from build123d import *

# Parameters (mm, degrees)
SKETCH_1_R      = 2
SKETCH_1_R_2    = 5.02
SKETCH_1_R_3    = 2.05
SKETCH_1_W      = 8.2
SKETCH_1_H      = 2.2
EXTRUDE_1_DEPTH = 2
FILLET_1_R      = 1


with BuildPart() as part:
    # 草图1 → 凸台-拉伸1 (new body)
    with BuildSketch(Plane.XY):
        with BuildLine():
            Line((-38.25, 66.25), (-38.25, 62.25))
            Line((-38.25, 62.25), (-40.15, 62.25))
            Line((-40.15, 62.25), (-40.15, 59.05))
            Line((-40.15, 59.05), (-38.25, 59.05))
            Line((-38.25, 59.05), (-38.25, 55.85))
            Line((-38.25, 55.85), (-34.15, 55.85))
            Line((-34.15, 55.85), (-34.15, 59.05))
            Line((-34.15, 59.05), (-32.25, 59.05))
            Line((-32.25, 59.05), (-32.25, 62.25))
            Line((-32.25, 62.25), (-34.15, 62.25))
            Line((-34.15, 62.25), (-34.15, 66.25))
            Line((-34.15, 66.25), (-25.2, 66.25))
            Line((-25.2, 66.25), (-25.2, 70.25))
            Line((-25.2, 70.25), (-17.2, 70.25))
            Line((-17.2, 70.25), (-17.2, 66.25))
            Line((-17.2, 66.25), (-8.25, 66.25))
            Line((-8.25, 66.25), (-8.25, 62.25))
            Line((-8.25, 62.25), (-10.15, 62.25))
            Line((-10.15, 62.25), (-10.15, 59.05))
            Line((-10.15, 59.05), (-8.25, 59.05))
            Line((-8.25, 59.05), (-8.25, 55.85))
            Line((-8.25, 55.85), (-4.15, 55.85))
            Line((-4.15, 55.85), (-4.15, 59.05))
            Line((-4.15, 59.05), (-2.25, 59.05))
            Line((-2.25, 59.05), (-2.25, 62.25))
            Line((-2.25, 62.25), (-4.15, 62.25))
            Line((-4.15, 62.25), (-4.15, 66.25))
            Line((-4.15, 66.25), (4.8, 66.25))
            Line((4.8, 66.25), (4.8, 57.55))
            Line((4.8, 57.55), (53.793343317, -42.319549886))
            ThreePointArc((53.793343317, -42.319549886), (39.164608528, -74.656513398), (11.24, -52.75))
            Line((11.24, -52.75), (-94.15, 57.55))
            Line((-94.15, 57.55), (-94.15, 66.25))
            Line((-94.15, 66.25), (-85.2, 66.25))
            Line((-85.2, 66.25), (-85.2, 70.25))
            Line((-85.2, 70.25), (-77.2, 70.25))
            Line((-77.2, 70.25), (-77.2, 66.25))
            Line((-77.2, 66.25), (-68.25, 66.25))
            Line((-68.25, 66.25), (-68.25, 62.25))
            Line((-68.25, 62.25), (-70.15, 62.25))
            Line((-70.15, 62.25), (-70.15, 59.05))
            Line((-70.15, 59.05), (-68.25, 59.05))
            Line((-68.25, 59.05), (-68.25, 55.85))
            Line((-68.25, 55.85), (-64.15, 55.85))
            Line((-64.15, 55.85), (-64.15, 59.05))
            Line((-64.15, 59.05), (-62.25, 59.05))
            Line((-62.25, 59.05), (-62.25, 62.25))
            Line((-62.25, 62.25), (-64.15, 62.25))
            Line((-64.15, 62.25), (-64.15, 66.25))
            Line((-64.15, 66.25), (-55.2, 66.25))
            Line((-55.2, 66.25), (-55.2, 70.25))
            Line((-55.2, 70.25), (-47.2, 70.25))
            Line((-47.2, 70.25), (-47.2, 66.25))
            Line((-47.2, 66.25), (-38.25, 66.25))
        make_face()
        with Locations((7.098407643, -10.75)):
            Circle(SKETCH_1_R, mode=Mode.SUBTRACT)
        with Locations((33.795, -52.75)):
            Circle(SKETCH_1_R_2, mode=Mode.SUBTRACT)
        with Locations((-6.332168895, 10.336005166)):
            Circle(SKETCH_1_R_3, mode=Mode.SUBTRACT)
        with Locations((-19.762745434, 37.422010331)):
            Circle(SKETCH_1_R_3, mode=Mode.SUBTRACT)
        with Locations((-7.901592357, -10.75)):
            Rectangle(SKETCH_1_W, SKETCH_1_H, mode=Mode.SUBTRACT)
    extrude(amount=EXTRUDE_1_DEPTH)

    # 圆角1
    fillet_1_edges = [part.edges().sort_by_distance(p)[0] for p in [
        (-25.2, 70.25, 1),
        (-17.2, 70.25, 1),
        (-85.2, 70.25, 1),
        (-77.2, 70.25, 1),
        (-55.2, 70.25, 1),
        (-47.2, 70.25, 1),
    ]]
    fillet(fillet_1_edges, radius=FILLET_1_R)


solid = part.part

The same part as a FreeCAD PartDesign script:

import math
import FreeCAD as App
import Part
import Sketcher

V = App.Vector
Q = App.Units.Quantity


def edges_at(feature, points):
    """Names of the edges that pass closest to the given points."""
    edges = feature.Shape.Edges
    near = lambda p: min(range(len(edges)), key=lambda i: edges[i].distToShape(Part.Vertex(*p))[0])
    return sorted({f"Edge{near(p) + 1}" for p in points})


def add_polygon(sketch, points):
    """Adds a closed chain of lines whose ends are joined by coincident constraints."""
    first, n = sketch.GeometryCount, len(points)
    for a, b in zip(points, points[1:] + points[:1]):
        sketch.addGeometry(Part.LineSegment(App.Vector(*a, 0), App.Vector(*b, 0)), False)
    for i in range(n):
        sketch.addConstraint(Sketcher.Constraint("Coincident", first + i, 2, first + (i + 1) % n, 1))

doc = App.newDocument("Part")
body = doc.addObject("PartDesign::Body", "Body")

# Sketch on XY plane
sketch1 = body.newObject("Sketcher::SketchObject", "Sketch")
sketch1.AttachmentSupport = (doc.getObject("XY_Plane"), [""])
sketch1.MapMode = "FlatFace"
sketch1.addGeometry(Part.LineSegment(V(-38.2, 62.2, 0), V(-38.2, 66.2, 0)), False)  # 0
sketch1.addGeometry(Part.LineSegment(V(-38.2, 66.2, 0), V(-47.2, 66.2, 0)), False)  # 1
sketch1.addGeometry(Part.LineSegment(V(-47.2, 66.2, 0), V(-47.2, 70.2, 0)), False)  # 2
sketch1.addGeometry(Part.LineSegment(V(-47.2, 70.2, 0), V(-55.2, 70.2, 0)), False)  # 3
sketch1.addGeometry(Part.LineSegment(V(-55.2, 70.2, 0), V(-55.2, 66.2, 0)), False)  # 4
sketch1.addGeometry(Part.LineSegment(V(-55.2, 66.2, 0), V(-64.2, 66.2, 0)), False)  # 5
sketch1.addGeometry(Part.LineSegment(V(-64.2, 66.2, 0), V(-64.2, 62.2, 0)), False)  # 6
sketch1.addGeometry(Part.LineSegment(V(-64.2, 62.2, 0), V(-62.2, 62.2, 0)), False)  # 7
sketch1.addGeometry(Part.LineSegment(V(-62.2, 62.2, 0), V(-62.2, 59, 0)), False)  # 8
sketch1.addGeometry(Part.LineSegment(V(-62.2, 59, 0), V(-64.2, 59, 0)), False)  # 9
sketch1.addGeometry(Part.LineSegment(V(-64.2, 59, 0), V(-64.2, 55.9, 0)), False)  # 10
sketch1.addGeometry(Part.LineSegment(V(-64.2, 55.9, 0), V(-68.2, 55.9, 0)), False)  # 11
sketch1.addGeometry(Part.LineSegment(V(-68.2, 55.9, 0), V(-68.2, 59, 0)), False)  # 12
sketch1.addGeometry(Part.LineSegment(V(-68.2, 59, 0), V(-70.2, 59, 0)), False)  # 13
sketch1.addGeometry(Part.LineSegment(V(-70.2, 59, 0), V(-70.2, 62.2, 0)), False)  # 14
sketch1.addGeometry(Part.LineSegment(V(-70.2, 62.2, 0), V(-68.2, 62.2, 0)), False)  # 15
sketch1.addGeometry(Part.LineSegment(V(-68.2, 62.2, 0), V(-68.2, 66.2, 0)), False)  # 16
sketch1.addGeometry(Part.LineSegment(V(-68.2, 66.2, 0), V(-77.2, 66.2, 0)), False)  # 17
sketch1.addGeometry(Part.LineSegment(V(-77.2, 66.2, 0), V(-77.2, 70.2, 0)), False)  # 18
sketch1.addGeometry(Part.LineSegment(V(-77.2, 70.2, 0), V(-85.2, 70.2, 0)), False)  # 19
sketch1.addGeometry(Part.LineSegment(V(-85.2, 70.2, 0), V(-85.2, 66.2, 0)), False)  # 20
sketch1.addGeometry(Part.LineSegment(V(-85.2, 66.2, 0), V(-94.2, 66.2, 0)), False)  # 21
sketch1.addGeometry(Part.LineSegment(V(-94.2, 66.2, 0), V(-94.2, 57.5, 0)), False)  # 22
sketch1.addGeometry(Part.LineSegment(V(-94.2, 57.5, 0), V(11.2, -52.8, 0)), False)  # 23
sketch1.addGeometry(Part.ArcOfCircle(Part.Circle(V(33.8, -52.8, 0), V(0, 0, 1), 22.6), math.radians(180), math.radians(388)), False)  # 24
sketch1.addGeometry(Part.LineSegment(V(53.8, -42.3, 0), V(4.8, 57.5, 0)), False)  # 25
sketch1.addGeometry(Part.LineSegment(V(4.8, 57.5, 0), V(4.8, 66.2, 0)), False)  # 26
sketch1.addGeometry(Part.LineSegment(V(4.8, 66.2, 0), V(-4.2, 66.2, 0)), False)  # 27
sketch1.addGeometry(Part.LineSegment(V(-4.2, 66.2, 0), V(-4.2, 62.2, 0)), False)  # 28
sketch1.addGeometry(Part.LineSegment(V(-4.2, 62.2, 0), V(-2.2, 62.2, 0)), False)  # 29
sketch1.addGeometry(Part.LineSegment(V(-2.2, 62.2, 0), V(-2.2, 59, 0)), False)  # 30
sketch1.addGeometry(Part.LineSegment(V(-2.2, 59, 0), V(-4.2, 59, 0)), False)  # 31
sketch1.addGeometry(Part.LineSegment(V(-4.2, 59, 0), V(-4.2, 55.9, 0)), False)  # 32
sketch1.addGeometry(Part.LineSegment(V(-4.2, 55.9, 0), V(-8.2, 55.9, 0)), False)  # 33
sketch1.addGeometry(Part.LineSegment(V(-8.2, 55.9, 0), V(-8.2, 59, 0)), False)  # 34
sketch1.addGeometry(Part.LineSegment(V(-8.2, 59, 0), V(-10.2, 59, 0)), False)  # 35
sketch1.addGeometry(Part.LineSegment(V(-10.2, 59, 0), V(-10.2, 62.2, 0)), False)  # 36
sketch1.addGeometry(Part.LineSegment(V(-10.2, 62.2, 0), V(-8.2, 62.2, 0)), False)  # 37
sketch1.addGeometry(Part.LineSegment(V(-8.2, 62.2, 0), V(-8.2, 66.2, 0)), False)  # 38
sketch1.addGeometry(Part.LineSegment(V(-8.2, 66.2, 0), V(-17.2, 66.2, 0)), False)  # 39
sketch1.addGeometry(Part.LineSegment(V(-17.2, 66.2, 0), V(-17.2, 70.2, 0)), False)  # 40
sketch1.addGeometry(Part.LineSegment(V(-17.2, 70.2, 0), V(-25.2, 70.2, 0)), False)  # 41
sketch1.addGeometry(Part.LineSegment(V(-25.2, 70.2, 0), V(-25.2, 66.2, 0)), False)  # 42
sketch1.addGeometry(Part.LineSegment(V(-25.2, 66.2, 0), V(-34.1, 66.2, 0)), False)  # 43
sketch1.addGeometry(Part.LineSegment(V(-34.1, 66.2, 0), V(-34.1, 62.2, 0)), False)  # 44
sketch1.addGeometry(Part.LineSegment(V(-34.1, 62.2, 0), V(-32.2, 62.2, 0)), False)  # 45
sketch1.addGeometry(Part.LineSegment(V(-32.2, 62.2, 0), V(-32.2, 59, 0)), False)  # 46
sketch1.addGeometry(Part.LineSegment(V(-32.2, 59, 0), V(-34.1, 59, 0)), False)  # 47
sketch1.addGeometry(Part.LineSegment(V(-34.1, 59, 0), V(-34.1, 55.9, 0)), False)  # 48
sketch1.addGeometry(Part.LineSegment(V(-34.1, 55.9, 0), V(-38.2, 55.9, 0)), False)  # 49
sketch1.addGeometry(Part.LineSegment(V(-38.2, 55.9, 0), V(-38.2, 59, 0)), False)  # 50
sketch1.addGeometry(Part.LineSegment(V(-38.2, 59, 0), V(-40.1, 59, 0)), False)  # 51
sketch1.addGeometry(Part.LineSegment(V(-40.1, 59, 0), V(-40.1, 62.2, 0)), False)  # 52
sketch1.addGeometry(Part.LineSegment(V(-40.1, 62.2, 0), V(-38.2, 62.2, 0)), False)  # 53
sketch1.addGeometry(Part.Circle(V(33.8, -52.8, 0), V(0, 0, 1), 5), False)  # 54
sketch1.addGeometry(Part.Circle(V(7.1, -10.8, 0), V(0, 0, 1), 2), False)  # 55
add_polygon(sketch1, [(-12, -11.8), (-12, -9.7), (-3.8, -9.7), (-3.8, -11.8)])  # lines 56-59
sketch1.addGeometry(Part.Circle(V(-6.3, 10.3, 0), V(0, 0, 1), 2), False)  # 60
sketch1.addGeometry(Part.Circle(V(-19.8, 37.4, 0), V(0, 0, 1), 2), False)  # 61
sketch1.addConstraint(Sketcher.Constraint("Coincident", 0, 2, 1, 1))
sketch1.addConstraint(Sketcher.Constraint("Coincident", 1, 2, 2, 1))
sketch1.addConstraint(Sketcher.Constraint("Coincident", 2, 2, 3, 1))
sketch1.addConstraint(Sketcher.Constraint("Coincident", 3, 2, 4, 1))
sketch1.addConstraint(Sketcher.Constraint("Coincident", 4, 2, 5, 1))
sketch1.addConstraint(Sketcher.Constraint("Coincident", 5, 2, 6, 1))
sketch1.addConstraint(Sketcher.Constraint("Coincident", 6, 2, 7, 1))
sketch1.addConstraint(Sketcher.Constraint("Coincident", 7, 2, 8, 1))
sketch1.addConstraint(Sketcher.Constraint("Coincident", 8, 2, 9, 1))
sketch1.addConstraint(Sketcher.Constraint("Coincident", 9, 2, 10, 1))
sketch1.addConstraint(Sketcher.Constraint("Coincident", 10, 2, 11, 1))
sketch1.addConstraint(Sketcher.Constraint("Coincident", 11, 2, 12, 1))
sketch1.addConstraint(Sketcher.Constraint("Coincident", 12, 2, 13, 1))
sketch1.addConstraint(Sketcher.Constraint("Coincident", 13, 2, 14, 1))
sketch1.addConstraint(Sketcher.Constraint("Coincident", 14, 2, 15, 1))
sketch1.addConstraint(Sketcher.Constraint("Coincident", 15, 2, 16, 1))
sketch1.addConstraint(Sketcher.Constraint("Coincident", 16, 2, 17, 1))
sketch1.addConstraint(Sketcher.Constraint("Coincident", 17, 2, 18, 1))
sketch1.addConstraint(Sketcher.Constraint("Coincident", 18, 2, 19, 1))
sketch1.addConstraint(Sketcher.Constraint("Coincident", 19, 2, 20, 1))
sketch1.addConstraint(Sketcher.Constraint("Coincident", 20, 2, 21, 1))
sketch1.addConstraint(Sketcher.Constraint("Coincident", 21, 2, 22, 1))
sketch1.addConstraint(Sketcher.Constraint("Coincident", 22, 2, 23, 1))
sketch1.addConstraint(Sketcher.Constraint("Coincident", 23, 2, 24, 1))
sketch1.addConstraint(Sketcher.Constraint("Coincident", 24, 2, 25, 1))
sketch1.addConstraint(Sketcher.Constraint("Coincident", 25, 2, 26, 1))
sketch1.addConstraint(Sketcher.Constraint("Coincident", 26, 2, 27, 1))
sketch1.addConstraint(Sketcher.Constraint("Coincident", 27, 2, 28, 1))
sketch1.addConstraint(Sketcher.Constraint("Coincident", 28, 2, 29, 1))
sketch1.addConstraint(Sketcher.Constraint("Coincident", 29, 2, 30, 1))
sketch1.addConstraint(Sketcher.Constraint("Coincident", 30, 2, 31, 1))
sketch1.addConstraint(Sketcher.Constraint("Coincident", 31, 2, 32, 1))
sketch1.addConstraint(Sketcher.Constraint("Coincident", 32, 2, 33, 1))
sketch1.addConstraint(Sketcher.Constraint("Coincident", 33, 2, 34, 1))
sketch1.addConstraint(Sketcher.Constraint("Coincident", 34, 2, 35, 1))
sketch1.addConstraint(Sketcher.Constraint("Coincident", 35, 2, 36, 1))
sketch1.addConstraint(Sketcher.Constraint("Coincident", 36, 2, 37, 1))
sketch1.addConstraint(Sketcher.Constraint("Coincident", 37, 2, 38, 1))
sketch1.addConstraint(Sketcher.Constraint("Coincident", 38, 2, 39, 1))
sketch1.addConstraint(Sketcher.Constraint("Coincident", 39, 2, 40, 1))
sketch1.addConstraint(Sketcher.Constraint("Coincident", 40, 2, 41, 1))
sketch1.addConstraint(Sketcher.Constraint("Coincident", 41, 2, 42, 1))
sketch1.addConstraint(Sketcher.Constraint("Coincident", 42, 2, 43, 1))
sketch1.addConstraint(Sketcher.Constraint("Coincident", 43, 2, 44, 1))
sketch1.addConstraint(Sketcher.Constraint("Coincident", 44, 2, 45, 1))
sketch1.addConstraint(Sketcher.Constraint("Coincident", 45, 2, 46, 1))
sketch1.addConstraint(Sketcher.Constraint("Coincident", 46, 2, 47, 1))
sketch1.addConstraint(Sketcher.Constraint("Coincident", 47, 2, 48, 1))
sketch1.addConstraint(Sketcher.Constraint("Coincident", 48, 2, 49, 1))
sketch1.addConstraint(Sketcher.Constraint("Coincident", 49, 2, 50, 1))
sketch1.addConstraint(Sketcher.Constraint("Coincident", 50, 2, 51, 1))
sketch1.addConstraint(Sketcher.Constraint("Coincident", 51, 2, 52, 1))
sketch1.addConstraint(Sketcher.Constraint("Coincident", 52, 2, 53, 1))
sketch1.addConstraint(Sketcher.Constraint("Coincident", 53, 2, 0, 1))
sketch1.addConstraint(Sketcher.Constraint("Vertical", 0))
sketch1.addConstraint(Sketcher.Constraint("Horizontal", 1))
sketch1.addConstraint(Sketcher.Constraint("Vertical", 2))
sketch1.addConstraint(Sketcher.Constraint("Horizontal", 3))
sketch1.addConstraint(Sketcher.Constraint("Vertical", 4))
sketch1.addConstraint(Sketcher.Constraint("Horizontal", 5))
sketch1.addConstraint(Sketcher.Constraint("Vertical", 6))
sketch1.addConstraint(Sketcher.Constraint("Horizontal", 7))
sketch1.addConstraint(Sketcher.Constraint("Vertical", 8))
sketch1.addConstraint(Sketcher.Constraint("Horizontal", 9))
sketch1.addConstraint(Sketcher.Constraint("Vertical", 10))
sketch1.addConstraint(Sketcher.Constraint("Horizontal", 11))
sketch1.addConstraint(Sketcher.Constraint("Vertical", 12))
sketch1.addConstraint(Sketcher.Constraint("Horizontal", 13))
sketch1.addConstraint(Sketcher.Constraint("Vertical", 14))
sketch1.addConstraint(Sketcher.Constraint("Horizontal", 15))
sketch1.addConstraint(Sketcher.Constraint("Vertical", 16))
sketch1.addConstraint(Sketcher.Constraint("Horizontal", 17))
sketch1.addConstraint(Sketcher.Constraint("Vertical", 18))
sketch1.addConstraint(Sketcher.Constraint("Horizontal", 19))
sketch1.addConstraint(Sketcher.Constraint("Vertical", 20))
sketch1.addConstraint(Sketcher.Constraint("Horizontal", 21))
sketch1.addConstraint(Sketcher.Constraint("Vertical", 22))
sketch1.addConstraint(Sketcher.Constraint("Vertical", 26))
sketch1.addConstraint(Sketcher.Constraint("Horizontal", 27))
sketch1.addConstraint(Sketcher.Constraint("Vertical", 28))
sketch1.addConstraint(Sketcher.Constraint("Horizontal", 29))
sketch1.addConstraint(Sketcher.Constraint("Vertical", 30))
sketch1.addConstraint(Sketcher.Constraint("Horizontal", 31))
sketch1.addConstraint(Sketcher.Constraint("Vertical", 32))
sketch1.addConstraint(Sketcher.Constraint("Horizontal", 33))
sketch1.addConstraint(Sketcher.Constraint("Vertical", 34))
sketch1.addConstraint(Sketcher.Constraint("Horizontal", 35))
sketch1.addConstraint(Sketcher.Constraint("Vertical", 36))
sketch1.addConstraint(Sketcher.Constraint("Horizontal", 37))
sketch1.addConstraint(Sketcher.Constraint("Vertical", 38))
sketch1.addConstraint(Sketcher.Constraint("Horizontal", 39))
sketch1.addConstraint(Sketcher.Constraint("Vertical", 40))
sketch1.addConstraint(Sketcher.Constraint("Horizontal", 41))
sketch1.addConstraint(Sketcher.Constraint("Vertical", 42))
sketch1.addConstraint(Sketcher.Constraint("Horizontal", 43))
sketch1.addConstraint(Sketcher.Constraint("Vertical", 44))
sketch1.addConstraint(Sketcher.Constraint("Horizontal", 45))
sketch1.addConstraint(Sketcher.Constraint("Vertical", 46))
sketch1.addConstraint(Sketcher.Constraint("Horizontal", 47))
sketch1.addConstraint(Sketcher.Constraint("Vertical", 48))
sketch1.addConstraint(Sketcher.Constraint("Horizontal", 49))
sketch1.addConstraint(Sketcher.Constraint("Vertical", 50))
sketch1.addConstraint(Sketcher.Constraint("Horizontal", 51))
sketch1.addConstraint(Sketcher.Constraint("Vertical", 52))
sketch1.addConstraint(Sketcher.Constraint("Horizontal", 53))
sketch1.addConstraint(Sketcher.Constraint("Vertical", 56))
sketch1.addConstraint(Sketcher.Constraint("Horizontal", 57))
sketch1.addConstraint(Sketcher.Constraint("Vertical", 58))
sketch1.addConstraint(Sketcher.Constraint("Horizontal", 59))
sketch1.addConstraint(Sketcher.Constraint("Coincident", 54, 3, 24, 3))
sketch1.addConstraint(Sketcher.Constraint("Equal", 60, 61))
sketch1.addConstraint(Sketcher.Constraint("Horizontal", 1, 2, 4, 2))
sketch1.addConstraint(Sketcher.Constraint("Horizontal", 9, 2, 12, 2))
sketch1.addConstraint(Sketcher.Constraint("Horizontal", 7, 2, 14, 2))
sketch1.addConstraint(Sketcher.Constraint("Horizontal", 5, 2, 16, 2))
sketch1.addConstraint(Sketcher.Constraint("Horizontal", 3, 2, 18, 2))
sketch1.addConstraint(Sketcher.Constraint("Horizontal", 17, 2, 20, 2))
sketch1.addConstraint(Sketcher.Constraint("Horizontal", 54, 3, 23, 2))
sketch1.addConstraint(Sketcher.Constraint("Horizontal", 22, 2, 25, 2))
sketch1.addConstraint(Sketcher.Constraint("Horizontal", 21, 2, 26, 2))
sketch1.addConstraint(Sketcher.Constraint("Horizontal", 15, 2, 28, 2))
sketch1.addConstraint(Sketcher.Constraint("Horizontal", 13, 2, 30, 2))
sketch1.addConstraint(Sketcher.Constraint("Horizontal", 11, 2, 32, 2))
sketch1.addConstraint(Sketcher.Constraint("Horizontal", 31, 2, 34, 2))
sketch1.addConstraint(Sketcher.Constraint("Horizontal", 29, 2, 36, 2))
sketch1.addConstraint(Sketcher.Constraint("Horizontal", 27, 2, 38, 2))
sketch1.addConstraint(Sketcher.Constraint("Horizontal", 19, 2, 40, 2))
sketch1.addConstraint(Sketcher.Constraint("Horizontal", 39, 2, 42, 2))
sketch1.addConstraint(Sketcher.Constraint("Horizontal", 37, 2, 44, 2))
sketch1.addConstraint(Sketcher.Constraint("Horizontal", 35, 2, 46, 2))
sketch1.addConstraint(Sketcher.Constraint("Horizontal", 33, 2, 48, 2))
sketch1.addConstraint(Sketcher.Constraint("Horizontal", 47, 2, 50, 2))
sketch1.addConstraint(Sketcher.Constraint("Horizontal", 45, 2, 52, 2))
sketch1.addConstraint(Sketcher.Constraint("Vertical", 6, 2, 9, 2))
sketch1.addConstraint(Sketcher.Constraint("Vertical", 12, 2, 15, 2))
sketch1.addConstraint(Sketcher.Constraint("Vertical", 28, 2, 31, 2))
sketch1.addConstraint(Sketcher.Constraint("Vertical", 34, 2, 37, 2))
sketch1.addConstraint(Sketcher.Constraint("Vertical", 44, 2, 47, 2))
sketch1.addConstraint(Sketcher.Constraint("Vertical", 0, 2, 49, 2))
sketch1.addConstraint(Sketcher.Constraint("Equal", 1, 5))
sketch1.addConstraint(Sketcher.Constraint("Equal", 9, 13))
sketch1.addConstraint(Sketcher.Constraint("Equal", 5, 17))
sketch1.addConstraint(Sketcher.Constraint("Equal", 3, 19))
sketch1.addConstraint(Sketcher.Constraint("Equal", 17, 21))
sketch1.addConstraint(Sketcher.Constraint("Equal", 21, 27))
sketch1.addConstraint(Sketcher.Constraint("Equal", 15, 29))
sketch1.addConstraint(Sketcher.Constraint("Equal", 11, 33))
sketch1.addConstraint(Sketcher.Constraint("Equal", 31, 35))
sketch1.addConstraint(Sketcher.Constraint("Equal", 27, 39))
sketch1.addConstraint(Sketcher.Constraint("Equal", 19, 41))
sketch1.addConstraint(Sketcher.Constraint("Equal", 39, 43))
sketch1.addConstraint(Sketcher.Constraint("Equal", 37, 45))
sketch1.addConstraint(Sketcher.Constraint("Equal", 33, 49))
sketch1.addConstraint(Sketcher.Constraint("Equal", 47, 51))
sketch1.addConstraint(Sketcher.Constraint("Equal", 0, 2))
sketch1.addConstraint(Sketcher.Constraint("Equal", 8, 10))
sketch1.addConstraint(Sketcher.Constraint("Diameter", 55, Q("4 mm")))
sketch1.addConstraint(Sketcher.Constraint("Diameter", 60, Q("4.1 mm")))
sketch1.addConstraint(Sketcher.Constraint("Diameter", 54, Q("10.04 mm")))
sketch1.addConstraint(Sketcher.Constraint("DistanceX", 3, 2, 3, 1, Q("8 mm")))
sketch1.addConstraint(Sketcher.Constraint("DistanceY", 0, 1, 0, 2, Q("4 mm")))
sketch1.addConstraint(Sketcher.Constraint("DistanceX", 7, 1, 7, 2, Q("1.9 mm")))
sketch1.addConstraint(Sketcher.Constraint("DistanceX", 11, 2, 11, 1, Q("4.1 mm")))
sketch1.addConstraint(Sketcher.Constraint("DistanceX", 57, 1, 57, 2, Q("8.2 mm")))
sketch1.addConstraint(Sketcher.Constraint("DistanceY", 8, 2, 8, 1, Q("3.2 mm")))
sketch1.addConstraint(Sketcher.Constraint("DistanceY", 22, 2, 22, 1, Q("8.7 mm")))
sketch1.addConstraint(Sketcher.Constraint("DistanceY", 56, 1, 56, 2, Q("2.2 mm")))
sketch1.addConstraint(Sketcher.Constraint("Radius", 24, Q("22.555 mm")))
sketch1.addConstraint(Sketcher.Constraint("DistanceX", 1, 2, 1, 1, Q("8.95 mm")))
sketch1.addConstraint(Sketcher.Constraint("DistanceX", 1, 2, -1, 1, Q("47.2 mm")))
sketch1.addConstraint(Sketcher.Constraint("DistanceY", 24, 3, -1, 1, Q("52.75 mm")))
sketch1.addConstraint(Sketcher.Constraint("DistanceY", 55, 3, -1, 1, Q("10.75 mm")))
sketch1.addConstraint(Sketcher.Constraint("DistanceY", -1, 1, 0, 2, Q("66.25 mm")))
sketch1.addConstraint(Sketcher.Constraint("DistanceX", -1, 1, 23, 2, Q("11.24 mm")))
sketch1.addConstraint(Sketcher.Constraint("DistanceY", 56, 2, -1, 1, Q("9.65 mm")))
sketch1.addConstraint(Sketcher.Constraint("DistanceX", 60, 3, -1, 1, Q("6.332169 mm")))
sketch1.addConstraint(Sketcher.Constraint("DistanceY", -1, 1, 61, 3, Q("37.42201 mm")))
sketch1.addConstraint(Sketcher.Constraint("DistanceY", 24, 2, -1, 1, Q("42.31955 mm")))
sketch1.addConstraint(Sketcher.Constraint("DistanceX", -1, 1, 55, 3, Q("7.098408 mm")))
sketch1.addConstraint(Sketcher.Constraint("DistanceY", -1, 1, 60, 3, Q("10.336005 mm")))
sketch1.addConstraint(Sketcher.Constraint("DistanceX", 61, 3, -1, 1, Q("19.762745 mm")))
sketch1.addConstraint(Sketcher.Constraint("DistanceX", 56, 2, -1, 1, Q("12.001592 mm")))
pad1 = body.newObject("PartDesign::Pad", "Pad")
pad1.Profile = sketch1
pad1.Length = 2
doc.recompute()

fillet = body.newObject("PartDesign::Fillet", "Fillet")
fillet.Base = (pad1, edges_at(pad1, [
    (-25.2, 70.25, 1),
    (-17.2, 70.25, 1),
    (-85.2, 70.25, 1),
    (-77.2, 70.25, 1),
    (-55.2, 70.25, 1),
    (-47.2, 70.25, 1),
]))
fillet.Radius = 1

doc.recompute()
